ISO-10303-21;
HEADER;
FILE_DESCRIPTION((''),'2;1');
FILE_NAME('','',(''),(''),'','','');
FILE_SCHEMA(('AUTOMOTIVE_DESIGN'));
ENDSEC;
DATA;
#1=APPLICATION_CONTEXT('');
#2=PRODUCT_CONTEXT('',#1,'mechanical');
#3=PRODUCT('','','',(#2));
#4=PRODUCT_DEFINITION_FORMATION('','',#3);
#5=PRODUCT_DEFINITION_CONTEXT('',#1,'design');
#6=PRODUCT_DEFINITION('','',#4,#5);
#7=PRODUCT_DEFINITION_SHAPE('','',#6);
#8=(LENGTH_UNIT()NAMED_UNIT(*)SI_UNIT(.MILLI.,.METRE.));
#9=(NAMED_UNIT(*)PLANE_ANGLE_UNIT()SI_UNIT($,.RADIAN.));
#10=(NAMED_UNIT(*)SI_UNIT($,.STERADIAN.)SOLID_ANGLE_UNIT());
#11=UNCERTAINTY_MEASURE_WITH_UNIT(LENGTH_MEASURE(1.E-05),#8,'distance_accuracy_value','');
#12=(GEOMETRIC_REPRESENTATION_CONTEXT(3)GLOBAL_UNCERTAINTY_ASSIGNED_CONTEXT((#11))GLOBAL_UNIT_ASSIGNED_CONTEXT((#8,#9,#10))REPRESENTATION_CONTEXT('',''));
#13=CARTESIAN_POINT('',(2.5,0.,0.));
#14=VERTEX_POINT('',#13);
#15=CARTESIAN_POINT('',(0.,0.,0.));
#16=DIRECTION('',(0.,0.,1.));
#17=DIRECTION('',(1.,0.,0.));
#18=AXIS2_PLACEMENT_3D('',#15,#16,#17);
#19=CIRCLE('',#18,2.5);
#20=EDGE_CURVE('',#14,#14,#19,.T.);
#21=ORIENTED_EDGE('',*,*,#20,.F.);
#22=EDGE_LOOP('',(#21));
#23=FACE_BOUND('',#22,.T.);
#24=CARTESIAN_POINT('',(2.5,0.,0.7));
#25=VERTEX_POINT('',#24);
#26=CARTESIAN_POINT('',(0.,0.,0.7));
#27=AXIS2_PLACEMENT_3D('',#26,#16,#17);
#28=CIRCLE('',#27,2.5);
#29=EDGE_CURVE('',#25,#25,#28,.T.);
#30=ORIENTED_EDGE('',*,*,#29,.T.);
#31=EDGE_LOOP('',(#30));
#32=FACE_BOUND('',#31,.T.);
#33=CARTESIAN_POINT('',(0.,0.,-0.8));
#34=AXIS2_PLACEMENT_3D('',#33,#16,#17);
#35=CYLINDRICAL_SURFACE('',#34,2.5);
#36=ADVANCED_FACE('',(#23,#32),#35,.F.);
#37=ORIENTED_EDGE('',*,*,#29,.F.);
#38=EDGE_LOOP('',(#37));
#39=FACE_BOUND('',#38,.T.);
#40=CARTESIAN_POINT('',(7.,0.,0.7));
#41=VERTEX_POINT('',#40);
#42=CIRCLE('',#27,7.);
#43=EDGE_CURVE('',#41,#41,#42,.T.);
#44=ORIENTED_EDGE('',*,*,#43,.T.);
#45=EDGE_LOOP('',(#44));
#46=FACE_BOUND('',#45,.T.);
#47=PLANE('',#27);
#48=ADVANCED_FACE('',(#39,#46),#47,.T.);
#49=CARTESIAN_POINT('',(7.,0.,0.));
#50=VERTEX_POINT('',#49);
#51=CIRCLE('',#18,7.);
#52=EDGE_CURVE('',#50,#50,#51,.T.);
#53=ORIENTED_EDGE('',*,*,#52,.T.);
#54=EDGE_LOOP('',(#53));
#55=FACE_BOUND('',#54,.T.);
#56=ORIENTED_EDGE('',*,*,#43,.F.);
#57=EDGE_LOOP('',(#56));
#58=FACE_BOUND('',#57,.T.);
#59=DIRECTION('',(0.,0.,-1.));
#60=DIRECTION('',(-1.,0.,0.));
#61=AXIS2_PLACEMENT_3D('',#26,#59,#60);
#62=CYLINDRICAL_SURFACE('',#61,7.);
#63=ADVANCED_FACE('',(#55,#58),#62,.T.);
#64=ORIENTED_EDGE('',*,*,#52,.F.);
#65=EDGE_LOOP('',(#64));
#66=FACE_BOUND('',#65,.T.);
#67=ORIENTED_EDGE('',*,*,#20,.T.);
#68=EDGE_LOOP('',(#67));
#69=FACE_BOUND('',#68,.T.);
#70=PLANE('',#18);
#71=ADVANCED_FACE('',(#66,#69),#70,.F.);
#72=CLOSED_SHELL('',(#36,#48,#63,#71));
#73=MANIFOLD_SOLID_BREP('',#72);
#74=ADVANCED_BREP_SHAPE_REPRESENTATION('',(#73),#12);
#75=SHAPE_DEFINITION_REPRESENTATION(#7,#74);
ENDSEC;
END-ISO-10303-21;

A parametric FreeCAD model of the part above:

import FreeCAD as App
import Part
import Sketcher

V = App.Vector
Q = App.Units.Quantity

doc = App.newDocument("Part")
body = doc.addObject("PartDesign::Body", "Body")

# Sketch on XY plane
sketch1 = body.newObject("Sketcher::SketchObject", "Sketch")
sketch1.AttachmentSupport = (doc.getObject("XY_Plane"), [""])
sketch1.MapMode = "FlatFace"
sketch1.addGeometry(Part.Circle(V(0, 0, 0), V(0, 0, 1), 7), False)
sketch1.addConstraint([
    Sketcher.Constraint("Coincident", 0, 3, -1, 1),
    Sketcher.Constraint("Diameter", 0, Q("14 mm")),
])
pad1 = body.newObject("PartDesign::Pad", "Pad")
pad1.Profile = sketch1
pad1.Length = 0.7

# Sketch on XY plane
sketch2 = body.newObject("Sketcher::SketchObject", "Sketch001")
sketch2.AttachmentSupport = (doc.getObject("XY_Plane"), [""])
sketch2.MapMode = "FlatFace"
sketch2.AttachmentOffset = App.Placement(V(0, 0, 0.7), App.Rotation())
sketch2.addGeometry(Part.Circle(V(0, 0, 0), V(0, 0, 1), 2.5), False)
sketch2.addConstraint([
    Sketcher.Constraint("Coincident", 0, 3, -1, 1),
    Sketcher.Constraint("Diameter", 0, Q("5 mm")),
])
pocket1 = body.newObject("PartDesign::Pocket", "Pocket")
pocket1.Profile = sketch2
pocket1.Length = 1.5

doc.recompute()
